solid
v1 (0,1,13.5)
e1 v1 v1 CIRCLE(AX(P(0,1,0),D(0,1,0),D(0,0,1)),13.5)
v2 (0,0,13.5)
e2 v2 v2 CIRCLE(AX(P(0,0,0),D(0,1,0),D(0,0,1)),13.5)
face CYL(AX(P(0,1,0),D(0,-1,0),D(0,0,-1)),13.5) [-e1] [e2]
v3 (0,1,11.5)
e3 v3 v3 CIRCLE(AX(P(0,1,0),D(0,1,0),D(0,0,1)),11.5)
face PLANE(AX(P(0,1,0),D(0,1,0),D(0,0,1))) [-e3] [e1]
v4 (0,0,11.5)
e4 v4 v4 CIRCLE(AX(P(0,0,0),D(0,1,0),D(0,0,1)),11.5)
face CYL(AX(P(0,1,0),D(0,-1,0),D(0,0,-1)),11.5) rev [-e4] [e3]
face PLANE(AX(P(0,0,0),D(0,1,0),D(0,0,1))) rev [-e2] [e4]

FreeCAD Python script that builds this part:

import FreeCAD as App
import Part
import Sketcher
from FreeCAD import Vector

doc = App.newDocument("Part")
body = doc.addObject("PartDesign::Body", "Body")

sketch1 = body.newObject("Sketcher::SketchObject", "Sketch")
sketch1.AttachmentSupport = (doc.getObject("XZ_Plane"), [""])
sketch1.MapMode = "FlatFace"
sketch1.addGeometry([
    Part.Circle(Vector(0, 0, 0), Vector(0, 0, 1), 13.5),
    Part.Circle(Vector(0, 0, 0), Vector(0, 0, 1), 11.5),
], False)
sketch1.addConstraint([
    Sketcher.Constraint("Coincident", 0, 3, -1, 1),
    Sketcher.Constraint("Coincident", 1, 3, -1, 1),
    Sketcher.Constraint("Diameter", 0, 27.0),
    Sketcher.Constraint("Diameter", 1, 23.0),
])
pad1 = body.newObject("PartDesign::Pad", "Pad")
pad1.Profile = sketch1
pad1.Length = 1
pad1.Reversed = True

doc.recompute()
